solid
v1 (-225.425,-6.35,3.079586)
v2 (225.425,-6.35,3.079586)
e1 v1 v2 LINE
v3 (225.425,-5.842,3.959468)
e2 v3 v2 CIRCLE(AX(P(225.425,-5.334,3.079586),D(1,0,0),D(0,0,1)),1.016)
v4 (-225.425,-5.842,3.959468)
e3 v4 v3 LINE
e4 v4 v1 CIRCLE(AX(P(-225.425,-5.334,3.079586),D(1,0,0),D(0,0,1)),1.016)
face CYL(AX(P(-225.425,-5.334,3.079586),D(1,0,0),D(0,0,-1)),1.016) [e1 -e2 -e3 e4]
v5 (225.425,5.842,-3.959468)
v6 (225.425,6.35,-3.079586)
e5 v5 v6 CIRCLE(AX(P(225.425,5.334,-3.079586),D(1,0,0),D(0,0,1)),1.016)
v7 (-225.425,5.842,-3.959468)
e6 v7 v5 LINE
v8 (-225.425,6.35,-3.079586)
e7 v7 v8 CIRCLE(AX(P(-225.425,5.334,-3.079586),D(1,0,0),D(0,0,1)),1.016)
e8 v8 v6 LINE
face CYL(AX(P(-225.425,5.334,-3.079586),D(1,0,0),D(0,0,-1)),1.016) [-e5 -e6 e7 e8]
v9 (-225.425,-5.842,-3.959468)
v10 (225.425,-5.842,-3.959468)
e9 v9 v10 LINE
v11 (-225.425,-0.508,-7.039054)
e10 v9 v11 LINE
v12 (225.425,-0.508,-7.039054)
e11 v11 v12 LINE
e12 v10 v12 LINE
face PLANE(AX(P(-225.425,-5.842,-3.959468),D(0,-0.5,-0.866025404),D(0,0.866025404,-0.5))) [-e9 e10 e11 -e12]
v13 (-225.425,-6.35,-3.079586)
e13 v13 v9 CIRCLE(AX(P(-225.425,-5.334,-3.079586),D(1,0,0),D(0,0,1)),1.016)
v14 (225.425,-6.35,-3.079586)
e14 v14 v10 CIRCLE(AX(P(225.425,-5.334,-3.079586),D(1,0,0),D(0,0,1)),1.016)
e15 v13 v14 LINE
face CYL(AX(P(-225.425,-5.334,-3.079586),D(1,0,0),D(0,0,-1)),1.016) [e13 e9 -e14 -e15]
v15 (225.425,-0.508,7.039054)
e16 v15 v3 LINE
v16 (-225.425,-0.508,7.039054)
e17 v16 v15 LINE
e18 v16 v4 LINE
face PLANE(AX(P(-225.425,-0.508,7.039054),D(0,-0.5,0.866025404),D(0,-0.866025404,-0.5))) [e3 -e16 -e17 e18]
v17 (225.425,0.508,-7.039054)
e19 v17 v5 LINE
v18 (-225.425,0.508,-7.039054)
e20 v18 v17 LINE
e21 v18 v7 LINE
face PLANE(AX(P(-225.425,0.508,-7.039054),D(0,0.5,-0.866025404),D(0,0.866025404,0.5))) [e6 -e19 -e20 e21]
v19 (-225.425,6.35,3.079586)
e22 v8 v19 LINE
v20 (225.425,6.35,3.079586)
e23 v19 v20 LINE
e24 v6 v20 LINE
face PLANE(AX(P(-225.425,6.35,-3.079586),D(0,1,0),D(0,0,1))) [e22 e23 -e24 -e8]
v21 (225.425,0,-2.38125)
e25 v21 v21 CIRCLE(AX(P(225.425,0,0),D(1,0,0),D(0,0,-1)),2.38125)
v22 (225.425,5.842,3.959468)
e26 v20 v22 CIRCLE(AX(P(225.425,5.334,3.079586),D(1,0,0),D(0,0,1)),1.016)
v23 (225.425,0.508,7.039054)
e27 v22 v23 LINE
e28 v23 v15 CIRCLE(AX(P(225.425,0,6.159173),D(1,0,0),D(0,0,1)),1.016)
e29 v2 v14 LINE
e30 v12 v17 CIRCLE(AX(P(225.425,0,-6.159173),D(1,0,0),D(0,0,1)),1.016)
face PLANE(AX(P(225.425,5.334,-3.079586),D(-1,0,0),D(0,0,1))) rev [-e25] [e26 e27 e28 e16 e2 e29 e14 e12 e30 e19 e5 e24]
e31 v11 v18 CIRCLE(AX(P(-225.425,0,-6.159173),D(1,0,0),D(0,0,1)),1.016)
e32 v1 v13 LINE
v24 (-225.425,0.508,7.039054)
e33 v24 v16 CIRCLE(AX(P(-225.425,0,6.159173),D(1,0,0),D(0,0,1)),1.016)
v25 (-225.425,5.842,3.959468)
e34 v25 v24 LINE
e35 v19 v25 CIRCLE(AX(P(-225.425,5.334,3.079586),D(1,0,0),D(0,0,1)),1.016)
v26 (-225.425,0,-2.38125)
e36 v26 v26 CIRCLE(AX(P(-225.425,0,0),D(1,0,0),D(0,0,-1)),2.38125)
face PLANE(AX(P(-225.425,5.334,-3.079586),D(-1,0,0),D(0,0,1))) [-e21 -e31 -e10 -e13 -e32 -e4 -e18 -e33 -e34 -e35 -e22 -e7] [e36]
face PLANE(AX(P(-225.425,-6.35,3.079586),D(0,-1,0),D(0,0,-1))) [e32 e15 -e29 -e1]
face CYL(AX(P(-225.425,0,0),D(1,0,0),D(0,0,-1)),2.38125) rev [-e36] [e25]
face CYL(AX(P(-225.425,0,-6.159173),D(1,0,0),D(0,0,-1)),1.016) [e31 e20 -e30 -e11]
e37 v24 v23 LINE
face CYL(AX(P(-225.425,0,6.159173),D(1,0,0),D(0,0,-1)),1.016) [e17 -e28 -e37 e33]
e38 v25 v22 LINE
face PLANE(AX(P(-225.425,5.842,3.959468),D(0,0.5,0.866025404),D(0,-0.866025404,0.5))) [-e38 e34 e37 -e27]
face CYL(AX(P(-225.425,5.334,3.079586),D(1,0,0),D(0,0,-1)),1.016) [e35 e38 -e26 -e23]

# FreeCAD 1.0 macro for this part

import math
import FreeCAD as App
import Part
import Sketcher
from FreeCAD import Vector
Q = App.Units.Quantity

doc = App.newDocument("Part")
params = doc.addObject("Spreadsheet::Sheet", "Params")
for row, (alias, value) in enumerate([
    ("sketch1_radius", "0.04 in"),
    ("sketch1_diameter", "0.1875 in"),
    ("pad1_length", "8.875 in"),
    ("pad1_length2", "8.875 in"),
], start=1):
    params.set(f"A{row}", alias)
    params.set(f"B{row}", "=" + value)
    params.setAlias(f"B{row}", alias)

body = doc.addObject("PartDesign::Body", "Body")

# Sketch on YZ plane
sketch1 = body.newObject("Sketcher::SketchObject", "Sketch")
sketch1.AttachmentSupport = (doc.getObject("YZ_Plane"), [""])
sketch1.MapMode = "FlatFace"
sketch1.addGeometry([
    Part.LineSegment(Vector(0.5, -7, 0), Vector(5.8, -4, 0)),  # 0
    Part.ArcOfCircle(Part.Circle(Vector(5.3, -3.1, 0), Vector(0, 0, 1), 1), math.radians(-60), math.radians(0)),  # 1
    Part.LineSegment(Vector(6.3, -3.1, 0), Vector(6.3, 3.1, 0)),  # 2
    Part.ArcOfCircle(Part.Circle(Vector(5.3, 3.1, 0), Vector(0, 0, 1), 1), math.radians(0), math.radians(60)),  # 3
    Part.LineSegment(Vector(5.8, 4, 0), Vector(0.5, 7, 0)),  # 4
    Part.ArcOfCircle(Part.Circle(Vector(0, 6.2, 0), Vector(0, 0, 1), 1), math.radians(60), math.radians(120)),  # 5
    Part.LineSegment(Vector(-0.5, 7, 0), Vector(-5.8, 4, 0)),  # 6
    Part.ArcOfCircle(Part.Circle(Vector(-5.3, 3.1, 0), Vector(0, 0, 1), 1), math.radians(120), math.radians(180)),  # 7
    Part.LineSegment(Vector(-6.3, 3.1, 0), Vector(-6.3, -3.1, 0)),  # 8
    Part.ArcOfCircle(Part.Circle(Vector(-5.3, -3.1, 0), Vector(0, 0, 1), 1), math.radians(-180), math.radians(-120)),  # 9
    Part.LineSegment(Vector(-5.8, -4, 0), Vector(-0.5, -7, 0)),  # 10
    Part.ArcOfCircle(Part.Circle(Vector(0, -6.2, 0), Vector(0, 0, 1), 1), math.radians(-120), math.radians(-60)),  # 11
    Part.Circle(Vector(0, 0, 0), Vector(0, 0, 1), 2.4),  # 12
], False)
sketch1.addConstraint([
    Sketcher.Constraint("Tangent", 0, 2, 1, 1),
    Sketcher.Constraint("Tangent", 1, 2, 2, 1),
    Sketcher.Constraint("Tangent", 2, 2, 3, 1),
    Sketcher.Constraint("Tangent", 3, 2, 4, 1),
    Sketcher.Constraint("Tangent", 4, 2, 5, 1),
    Sketcher.Constraint("Tangent", 5, 2, 6, 1),
    Sketcher.Constraint("Tangent", 6, 2, 7, 1),
    Sketcher.Constraint("Tangent", 7, 2, 8, 1),
    Sketcher.Constraint("Tangent", 8, 2, 9, 1),
    Sketcher.Constraint("Tangent", 9, 2, 10, 1),
    Sketcher.Constraint("Tangent", 10, 2, 11, 1),
    Sketcher.Constraint("Tangent", 11, 2, 0, 1),
    Sketcher.Constraint("Vertical", 2),
    Sketcher.Constraint("Vertical", 8),
    Sketcher.Constraint("Coincident", 12, 3, -1, 1),
    Sketcher.Constraint("Equal", 1, 3),
    Sketcher.Constraint("Equal", 3, 5),
    Sketcher.Constraint("Equal", 5, 7),
    Sketcher.Constraint("Equal", 7, 9),
    Sketcher.Constraint("Equal", 9, 11),
    Sketcher.Constraint("Symmetric", 1, 3, 7, 3, -1, 1),
    Sketcher.Constraint("Symmetric", 5, 3, 11, 3, -1, 1),
    Sketcher.Constraint("Symmetric", 4, 2, 5, 2, -2),
    Sketcher.Constraint("Parallel", 4, 10),
    Sketcher.Constraint("Radius", 1, Q("0.04 in")),
    Sketcher.Constraint("Diameter", 12, Q("0.1875 in")),
    Sketcher.Constraint("Angle", 0, Q("30 deg")),
    Sketcher.Constraint("DistanceX", -1, 1, 1, 3, Q("0.21 in")),
    Sketcher.Constraint("DistanceY", 2, 1, 2, 2, 6.159173),
])
sketch1.setExpression("Constraints[24]", "Params.sketch1_radius")
sketch1.setExpression("Constraints[25]", "Params.sketch1_diameter")
pad1 = body.newObject("PartDesign::Pad", "Pad")
pad1.Profile = sketch1
pad1.Type = "TwoLengths"
pad1.setExpression("Length", "Params.pad1_length")
pad1.setExpression("Length2", "Params.pad1_length2")

doc.recompute()
